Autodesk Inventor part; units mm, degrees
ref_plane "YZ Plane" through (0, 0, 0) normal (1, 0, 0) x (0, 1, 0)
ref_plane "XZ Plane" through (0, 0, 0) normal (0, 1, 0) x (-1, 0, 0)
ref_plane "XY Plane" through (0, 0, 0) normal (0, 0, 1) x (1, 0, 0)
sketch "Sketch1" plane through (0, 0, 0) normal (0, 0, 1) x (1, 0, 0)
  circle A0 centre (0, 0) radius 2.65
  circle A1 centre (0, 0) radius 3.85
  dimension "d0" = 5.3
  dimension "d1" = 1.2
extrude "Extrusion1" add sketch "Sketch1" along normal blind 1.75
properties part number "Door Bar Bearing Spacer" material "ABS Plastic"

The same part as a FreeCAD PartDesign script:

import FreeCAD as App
import Part
import Sketcher
from FreeCAD import Vector
Q = App.Units.Quantity

doc = App.newDocument("Part")
params = doc.addObject("Spreadsheet::Sheet", "Params")
for row, (alias, value) in enumerate([
    ("sketch1_diameter", "5.3 mm"),
    ("sketch1_diameter2", "7.7 mm"),
    ("pad1_length", "1.75 mm"),
], start=1):
    params.set(f"A{row}", alias)
    params.set(f"B{row}", "=" + value)
    params.setAlias(f"B{row}", alias)

body = doc.addObject("PartDesign::Body", "Body")

sketch1 = doc.addObject("Sketcher::SketchObject", "Sketch")
body.addObject(sketch1)
sketch1.AttachmentSupport = (doc.XY_Plane, [""])
sketch1.MapMode = "FlatFace"
sketch1.addGeometry([
    Part.Circle(Vector(0, 0, 0), Vector(0, 0, 1), 3.9),
    Part.Circle(Vector(0, 0, 0), Vector(0, 0, 1), 2.6),
], False)
sketch1.addConstraint([
    Sketcher.Constraint("Coincident", 0, 3, -1, 1),
    Sketcher.Constraint("Coincident", 1, 3, -1, 1),
    Sketcher.Constraint("Diameter", 1, Q("5.3 mm")),
    Sketcher.Constraint("Diameter", 0, Q("7.7 mm")),
])
sketch1.setExpression("Constraints[2]", "Params.sketch1_diameter")
sketch1.setExpression("Constraints[3]", "Params.sketch1_diameter2")
pad1 = doc.addObject("PartDesign::Pad", "Pad")
body.addObject(pad1)
pad1.Profile = sketch1
pad1.setExpression("Length", "Params.pad1_length")

doc.recompute()
